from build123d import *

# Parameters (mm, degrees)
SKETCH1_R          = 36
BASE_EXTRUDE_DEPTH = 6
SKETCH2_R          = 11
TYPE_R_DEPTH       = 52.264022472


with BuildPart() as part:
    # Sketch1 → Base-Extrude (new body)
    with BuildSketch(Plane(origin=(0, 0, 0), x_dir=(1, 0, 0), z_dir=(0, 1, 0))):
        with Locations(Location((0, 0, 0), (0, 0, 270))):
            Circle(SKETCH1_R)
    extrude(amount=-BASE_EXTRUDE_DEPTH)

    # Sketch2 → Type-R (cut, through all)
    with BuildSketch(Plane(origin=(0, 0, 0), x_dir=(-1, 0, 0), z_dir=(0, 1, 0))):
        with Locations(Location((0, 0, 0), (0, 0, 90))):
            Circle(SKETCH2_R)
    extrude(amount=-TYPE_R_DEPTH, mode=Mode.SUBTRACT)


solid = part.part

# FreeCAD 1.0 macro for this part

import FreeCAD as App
import Part
import Sketcher

doc = App.newDocument("Part")
body = doc.addObject("PartDesign::Body", "Body")

# Sketch on XZ plane
sketch1 = doc.addObject("Sketcher::SketchObject", "Sketch")
body.addObject(sketch1)
sketch1.AttachmentSupport = (doc.XZ_Plane, [""])
sketch1.MapMode = "FlatFace"
sketch1.addGeometry(Part.Circle(App.Vector(0, 0, 0), App.Vector(0, 0, 1), 36), False)
sketch1.addConstraint([
    Sketcher.Constraint("Coincident", 0, 3, -1, 1),
    Sketcher.Constraint("Diameter", 0, 72.0),
])
pad1 = doc.addObject("PartDesign::Pad", "Pad")
body.addObject(pad1)
pad1.Profile = sketch1
pad1.Length = 6

# Sketch on XZ plane
sketch2 = doc.addObject("Sketcher::SketchObject", "Sketch001")
body.addObject(sketch2)
sketch2.AttachmentSupport = (doc.XZ_Plane, [""])
sketch2.MapMode = "FlatFace"
sketch2.addGeometry(Part.Circle(App.Vector(0, 0, 0), App.Vector(0, 0, 1), 11), False)
sketch2.addConstraint([
    Sketcher.Constraint("Coincident", 0, 3, -1, 1),
    Sketcher.Constraint("Diameter", 0, 22.0),
])
pocket1 = doc.addObject("PartDesign::Pocket", "Pocket")
body.addObject(pocket1)
pocket1.Profile = sketch2
pocket1.Type = "ThroughAll"
pocket1.Reversed = True

doc.recompute()
